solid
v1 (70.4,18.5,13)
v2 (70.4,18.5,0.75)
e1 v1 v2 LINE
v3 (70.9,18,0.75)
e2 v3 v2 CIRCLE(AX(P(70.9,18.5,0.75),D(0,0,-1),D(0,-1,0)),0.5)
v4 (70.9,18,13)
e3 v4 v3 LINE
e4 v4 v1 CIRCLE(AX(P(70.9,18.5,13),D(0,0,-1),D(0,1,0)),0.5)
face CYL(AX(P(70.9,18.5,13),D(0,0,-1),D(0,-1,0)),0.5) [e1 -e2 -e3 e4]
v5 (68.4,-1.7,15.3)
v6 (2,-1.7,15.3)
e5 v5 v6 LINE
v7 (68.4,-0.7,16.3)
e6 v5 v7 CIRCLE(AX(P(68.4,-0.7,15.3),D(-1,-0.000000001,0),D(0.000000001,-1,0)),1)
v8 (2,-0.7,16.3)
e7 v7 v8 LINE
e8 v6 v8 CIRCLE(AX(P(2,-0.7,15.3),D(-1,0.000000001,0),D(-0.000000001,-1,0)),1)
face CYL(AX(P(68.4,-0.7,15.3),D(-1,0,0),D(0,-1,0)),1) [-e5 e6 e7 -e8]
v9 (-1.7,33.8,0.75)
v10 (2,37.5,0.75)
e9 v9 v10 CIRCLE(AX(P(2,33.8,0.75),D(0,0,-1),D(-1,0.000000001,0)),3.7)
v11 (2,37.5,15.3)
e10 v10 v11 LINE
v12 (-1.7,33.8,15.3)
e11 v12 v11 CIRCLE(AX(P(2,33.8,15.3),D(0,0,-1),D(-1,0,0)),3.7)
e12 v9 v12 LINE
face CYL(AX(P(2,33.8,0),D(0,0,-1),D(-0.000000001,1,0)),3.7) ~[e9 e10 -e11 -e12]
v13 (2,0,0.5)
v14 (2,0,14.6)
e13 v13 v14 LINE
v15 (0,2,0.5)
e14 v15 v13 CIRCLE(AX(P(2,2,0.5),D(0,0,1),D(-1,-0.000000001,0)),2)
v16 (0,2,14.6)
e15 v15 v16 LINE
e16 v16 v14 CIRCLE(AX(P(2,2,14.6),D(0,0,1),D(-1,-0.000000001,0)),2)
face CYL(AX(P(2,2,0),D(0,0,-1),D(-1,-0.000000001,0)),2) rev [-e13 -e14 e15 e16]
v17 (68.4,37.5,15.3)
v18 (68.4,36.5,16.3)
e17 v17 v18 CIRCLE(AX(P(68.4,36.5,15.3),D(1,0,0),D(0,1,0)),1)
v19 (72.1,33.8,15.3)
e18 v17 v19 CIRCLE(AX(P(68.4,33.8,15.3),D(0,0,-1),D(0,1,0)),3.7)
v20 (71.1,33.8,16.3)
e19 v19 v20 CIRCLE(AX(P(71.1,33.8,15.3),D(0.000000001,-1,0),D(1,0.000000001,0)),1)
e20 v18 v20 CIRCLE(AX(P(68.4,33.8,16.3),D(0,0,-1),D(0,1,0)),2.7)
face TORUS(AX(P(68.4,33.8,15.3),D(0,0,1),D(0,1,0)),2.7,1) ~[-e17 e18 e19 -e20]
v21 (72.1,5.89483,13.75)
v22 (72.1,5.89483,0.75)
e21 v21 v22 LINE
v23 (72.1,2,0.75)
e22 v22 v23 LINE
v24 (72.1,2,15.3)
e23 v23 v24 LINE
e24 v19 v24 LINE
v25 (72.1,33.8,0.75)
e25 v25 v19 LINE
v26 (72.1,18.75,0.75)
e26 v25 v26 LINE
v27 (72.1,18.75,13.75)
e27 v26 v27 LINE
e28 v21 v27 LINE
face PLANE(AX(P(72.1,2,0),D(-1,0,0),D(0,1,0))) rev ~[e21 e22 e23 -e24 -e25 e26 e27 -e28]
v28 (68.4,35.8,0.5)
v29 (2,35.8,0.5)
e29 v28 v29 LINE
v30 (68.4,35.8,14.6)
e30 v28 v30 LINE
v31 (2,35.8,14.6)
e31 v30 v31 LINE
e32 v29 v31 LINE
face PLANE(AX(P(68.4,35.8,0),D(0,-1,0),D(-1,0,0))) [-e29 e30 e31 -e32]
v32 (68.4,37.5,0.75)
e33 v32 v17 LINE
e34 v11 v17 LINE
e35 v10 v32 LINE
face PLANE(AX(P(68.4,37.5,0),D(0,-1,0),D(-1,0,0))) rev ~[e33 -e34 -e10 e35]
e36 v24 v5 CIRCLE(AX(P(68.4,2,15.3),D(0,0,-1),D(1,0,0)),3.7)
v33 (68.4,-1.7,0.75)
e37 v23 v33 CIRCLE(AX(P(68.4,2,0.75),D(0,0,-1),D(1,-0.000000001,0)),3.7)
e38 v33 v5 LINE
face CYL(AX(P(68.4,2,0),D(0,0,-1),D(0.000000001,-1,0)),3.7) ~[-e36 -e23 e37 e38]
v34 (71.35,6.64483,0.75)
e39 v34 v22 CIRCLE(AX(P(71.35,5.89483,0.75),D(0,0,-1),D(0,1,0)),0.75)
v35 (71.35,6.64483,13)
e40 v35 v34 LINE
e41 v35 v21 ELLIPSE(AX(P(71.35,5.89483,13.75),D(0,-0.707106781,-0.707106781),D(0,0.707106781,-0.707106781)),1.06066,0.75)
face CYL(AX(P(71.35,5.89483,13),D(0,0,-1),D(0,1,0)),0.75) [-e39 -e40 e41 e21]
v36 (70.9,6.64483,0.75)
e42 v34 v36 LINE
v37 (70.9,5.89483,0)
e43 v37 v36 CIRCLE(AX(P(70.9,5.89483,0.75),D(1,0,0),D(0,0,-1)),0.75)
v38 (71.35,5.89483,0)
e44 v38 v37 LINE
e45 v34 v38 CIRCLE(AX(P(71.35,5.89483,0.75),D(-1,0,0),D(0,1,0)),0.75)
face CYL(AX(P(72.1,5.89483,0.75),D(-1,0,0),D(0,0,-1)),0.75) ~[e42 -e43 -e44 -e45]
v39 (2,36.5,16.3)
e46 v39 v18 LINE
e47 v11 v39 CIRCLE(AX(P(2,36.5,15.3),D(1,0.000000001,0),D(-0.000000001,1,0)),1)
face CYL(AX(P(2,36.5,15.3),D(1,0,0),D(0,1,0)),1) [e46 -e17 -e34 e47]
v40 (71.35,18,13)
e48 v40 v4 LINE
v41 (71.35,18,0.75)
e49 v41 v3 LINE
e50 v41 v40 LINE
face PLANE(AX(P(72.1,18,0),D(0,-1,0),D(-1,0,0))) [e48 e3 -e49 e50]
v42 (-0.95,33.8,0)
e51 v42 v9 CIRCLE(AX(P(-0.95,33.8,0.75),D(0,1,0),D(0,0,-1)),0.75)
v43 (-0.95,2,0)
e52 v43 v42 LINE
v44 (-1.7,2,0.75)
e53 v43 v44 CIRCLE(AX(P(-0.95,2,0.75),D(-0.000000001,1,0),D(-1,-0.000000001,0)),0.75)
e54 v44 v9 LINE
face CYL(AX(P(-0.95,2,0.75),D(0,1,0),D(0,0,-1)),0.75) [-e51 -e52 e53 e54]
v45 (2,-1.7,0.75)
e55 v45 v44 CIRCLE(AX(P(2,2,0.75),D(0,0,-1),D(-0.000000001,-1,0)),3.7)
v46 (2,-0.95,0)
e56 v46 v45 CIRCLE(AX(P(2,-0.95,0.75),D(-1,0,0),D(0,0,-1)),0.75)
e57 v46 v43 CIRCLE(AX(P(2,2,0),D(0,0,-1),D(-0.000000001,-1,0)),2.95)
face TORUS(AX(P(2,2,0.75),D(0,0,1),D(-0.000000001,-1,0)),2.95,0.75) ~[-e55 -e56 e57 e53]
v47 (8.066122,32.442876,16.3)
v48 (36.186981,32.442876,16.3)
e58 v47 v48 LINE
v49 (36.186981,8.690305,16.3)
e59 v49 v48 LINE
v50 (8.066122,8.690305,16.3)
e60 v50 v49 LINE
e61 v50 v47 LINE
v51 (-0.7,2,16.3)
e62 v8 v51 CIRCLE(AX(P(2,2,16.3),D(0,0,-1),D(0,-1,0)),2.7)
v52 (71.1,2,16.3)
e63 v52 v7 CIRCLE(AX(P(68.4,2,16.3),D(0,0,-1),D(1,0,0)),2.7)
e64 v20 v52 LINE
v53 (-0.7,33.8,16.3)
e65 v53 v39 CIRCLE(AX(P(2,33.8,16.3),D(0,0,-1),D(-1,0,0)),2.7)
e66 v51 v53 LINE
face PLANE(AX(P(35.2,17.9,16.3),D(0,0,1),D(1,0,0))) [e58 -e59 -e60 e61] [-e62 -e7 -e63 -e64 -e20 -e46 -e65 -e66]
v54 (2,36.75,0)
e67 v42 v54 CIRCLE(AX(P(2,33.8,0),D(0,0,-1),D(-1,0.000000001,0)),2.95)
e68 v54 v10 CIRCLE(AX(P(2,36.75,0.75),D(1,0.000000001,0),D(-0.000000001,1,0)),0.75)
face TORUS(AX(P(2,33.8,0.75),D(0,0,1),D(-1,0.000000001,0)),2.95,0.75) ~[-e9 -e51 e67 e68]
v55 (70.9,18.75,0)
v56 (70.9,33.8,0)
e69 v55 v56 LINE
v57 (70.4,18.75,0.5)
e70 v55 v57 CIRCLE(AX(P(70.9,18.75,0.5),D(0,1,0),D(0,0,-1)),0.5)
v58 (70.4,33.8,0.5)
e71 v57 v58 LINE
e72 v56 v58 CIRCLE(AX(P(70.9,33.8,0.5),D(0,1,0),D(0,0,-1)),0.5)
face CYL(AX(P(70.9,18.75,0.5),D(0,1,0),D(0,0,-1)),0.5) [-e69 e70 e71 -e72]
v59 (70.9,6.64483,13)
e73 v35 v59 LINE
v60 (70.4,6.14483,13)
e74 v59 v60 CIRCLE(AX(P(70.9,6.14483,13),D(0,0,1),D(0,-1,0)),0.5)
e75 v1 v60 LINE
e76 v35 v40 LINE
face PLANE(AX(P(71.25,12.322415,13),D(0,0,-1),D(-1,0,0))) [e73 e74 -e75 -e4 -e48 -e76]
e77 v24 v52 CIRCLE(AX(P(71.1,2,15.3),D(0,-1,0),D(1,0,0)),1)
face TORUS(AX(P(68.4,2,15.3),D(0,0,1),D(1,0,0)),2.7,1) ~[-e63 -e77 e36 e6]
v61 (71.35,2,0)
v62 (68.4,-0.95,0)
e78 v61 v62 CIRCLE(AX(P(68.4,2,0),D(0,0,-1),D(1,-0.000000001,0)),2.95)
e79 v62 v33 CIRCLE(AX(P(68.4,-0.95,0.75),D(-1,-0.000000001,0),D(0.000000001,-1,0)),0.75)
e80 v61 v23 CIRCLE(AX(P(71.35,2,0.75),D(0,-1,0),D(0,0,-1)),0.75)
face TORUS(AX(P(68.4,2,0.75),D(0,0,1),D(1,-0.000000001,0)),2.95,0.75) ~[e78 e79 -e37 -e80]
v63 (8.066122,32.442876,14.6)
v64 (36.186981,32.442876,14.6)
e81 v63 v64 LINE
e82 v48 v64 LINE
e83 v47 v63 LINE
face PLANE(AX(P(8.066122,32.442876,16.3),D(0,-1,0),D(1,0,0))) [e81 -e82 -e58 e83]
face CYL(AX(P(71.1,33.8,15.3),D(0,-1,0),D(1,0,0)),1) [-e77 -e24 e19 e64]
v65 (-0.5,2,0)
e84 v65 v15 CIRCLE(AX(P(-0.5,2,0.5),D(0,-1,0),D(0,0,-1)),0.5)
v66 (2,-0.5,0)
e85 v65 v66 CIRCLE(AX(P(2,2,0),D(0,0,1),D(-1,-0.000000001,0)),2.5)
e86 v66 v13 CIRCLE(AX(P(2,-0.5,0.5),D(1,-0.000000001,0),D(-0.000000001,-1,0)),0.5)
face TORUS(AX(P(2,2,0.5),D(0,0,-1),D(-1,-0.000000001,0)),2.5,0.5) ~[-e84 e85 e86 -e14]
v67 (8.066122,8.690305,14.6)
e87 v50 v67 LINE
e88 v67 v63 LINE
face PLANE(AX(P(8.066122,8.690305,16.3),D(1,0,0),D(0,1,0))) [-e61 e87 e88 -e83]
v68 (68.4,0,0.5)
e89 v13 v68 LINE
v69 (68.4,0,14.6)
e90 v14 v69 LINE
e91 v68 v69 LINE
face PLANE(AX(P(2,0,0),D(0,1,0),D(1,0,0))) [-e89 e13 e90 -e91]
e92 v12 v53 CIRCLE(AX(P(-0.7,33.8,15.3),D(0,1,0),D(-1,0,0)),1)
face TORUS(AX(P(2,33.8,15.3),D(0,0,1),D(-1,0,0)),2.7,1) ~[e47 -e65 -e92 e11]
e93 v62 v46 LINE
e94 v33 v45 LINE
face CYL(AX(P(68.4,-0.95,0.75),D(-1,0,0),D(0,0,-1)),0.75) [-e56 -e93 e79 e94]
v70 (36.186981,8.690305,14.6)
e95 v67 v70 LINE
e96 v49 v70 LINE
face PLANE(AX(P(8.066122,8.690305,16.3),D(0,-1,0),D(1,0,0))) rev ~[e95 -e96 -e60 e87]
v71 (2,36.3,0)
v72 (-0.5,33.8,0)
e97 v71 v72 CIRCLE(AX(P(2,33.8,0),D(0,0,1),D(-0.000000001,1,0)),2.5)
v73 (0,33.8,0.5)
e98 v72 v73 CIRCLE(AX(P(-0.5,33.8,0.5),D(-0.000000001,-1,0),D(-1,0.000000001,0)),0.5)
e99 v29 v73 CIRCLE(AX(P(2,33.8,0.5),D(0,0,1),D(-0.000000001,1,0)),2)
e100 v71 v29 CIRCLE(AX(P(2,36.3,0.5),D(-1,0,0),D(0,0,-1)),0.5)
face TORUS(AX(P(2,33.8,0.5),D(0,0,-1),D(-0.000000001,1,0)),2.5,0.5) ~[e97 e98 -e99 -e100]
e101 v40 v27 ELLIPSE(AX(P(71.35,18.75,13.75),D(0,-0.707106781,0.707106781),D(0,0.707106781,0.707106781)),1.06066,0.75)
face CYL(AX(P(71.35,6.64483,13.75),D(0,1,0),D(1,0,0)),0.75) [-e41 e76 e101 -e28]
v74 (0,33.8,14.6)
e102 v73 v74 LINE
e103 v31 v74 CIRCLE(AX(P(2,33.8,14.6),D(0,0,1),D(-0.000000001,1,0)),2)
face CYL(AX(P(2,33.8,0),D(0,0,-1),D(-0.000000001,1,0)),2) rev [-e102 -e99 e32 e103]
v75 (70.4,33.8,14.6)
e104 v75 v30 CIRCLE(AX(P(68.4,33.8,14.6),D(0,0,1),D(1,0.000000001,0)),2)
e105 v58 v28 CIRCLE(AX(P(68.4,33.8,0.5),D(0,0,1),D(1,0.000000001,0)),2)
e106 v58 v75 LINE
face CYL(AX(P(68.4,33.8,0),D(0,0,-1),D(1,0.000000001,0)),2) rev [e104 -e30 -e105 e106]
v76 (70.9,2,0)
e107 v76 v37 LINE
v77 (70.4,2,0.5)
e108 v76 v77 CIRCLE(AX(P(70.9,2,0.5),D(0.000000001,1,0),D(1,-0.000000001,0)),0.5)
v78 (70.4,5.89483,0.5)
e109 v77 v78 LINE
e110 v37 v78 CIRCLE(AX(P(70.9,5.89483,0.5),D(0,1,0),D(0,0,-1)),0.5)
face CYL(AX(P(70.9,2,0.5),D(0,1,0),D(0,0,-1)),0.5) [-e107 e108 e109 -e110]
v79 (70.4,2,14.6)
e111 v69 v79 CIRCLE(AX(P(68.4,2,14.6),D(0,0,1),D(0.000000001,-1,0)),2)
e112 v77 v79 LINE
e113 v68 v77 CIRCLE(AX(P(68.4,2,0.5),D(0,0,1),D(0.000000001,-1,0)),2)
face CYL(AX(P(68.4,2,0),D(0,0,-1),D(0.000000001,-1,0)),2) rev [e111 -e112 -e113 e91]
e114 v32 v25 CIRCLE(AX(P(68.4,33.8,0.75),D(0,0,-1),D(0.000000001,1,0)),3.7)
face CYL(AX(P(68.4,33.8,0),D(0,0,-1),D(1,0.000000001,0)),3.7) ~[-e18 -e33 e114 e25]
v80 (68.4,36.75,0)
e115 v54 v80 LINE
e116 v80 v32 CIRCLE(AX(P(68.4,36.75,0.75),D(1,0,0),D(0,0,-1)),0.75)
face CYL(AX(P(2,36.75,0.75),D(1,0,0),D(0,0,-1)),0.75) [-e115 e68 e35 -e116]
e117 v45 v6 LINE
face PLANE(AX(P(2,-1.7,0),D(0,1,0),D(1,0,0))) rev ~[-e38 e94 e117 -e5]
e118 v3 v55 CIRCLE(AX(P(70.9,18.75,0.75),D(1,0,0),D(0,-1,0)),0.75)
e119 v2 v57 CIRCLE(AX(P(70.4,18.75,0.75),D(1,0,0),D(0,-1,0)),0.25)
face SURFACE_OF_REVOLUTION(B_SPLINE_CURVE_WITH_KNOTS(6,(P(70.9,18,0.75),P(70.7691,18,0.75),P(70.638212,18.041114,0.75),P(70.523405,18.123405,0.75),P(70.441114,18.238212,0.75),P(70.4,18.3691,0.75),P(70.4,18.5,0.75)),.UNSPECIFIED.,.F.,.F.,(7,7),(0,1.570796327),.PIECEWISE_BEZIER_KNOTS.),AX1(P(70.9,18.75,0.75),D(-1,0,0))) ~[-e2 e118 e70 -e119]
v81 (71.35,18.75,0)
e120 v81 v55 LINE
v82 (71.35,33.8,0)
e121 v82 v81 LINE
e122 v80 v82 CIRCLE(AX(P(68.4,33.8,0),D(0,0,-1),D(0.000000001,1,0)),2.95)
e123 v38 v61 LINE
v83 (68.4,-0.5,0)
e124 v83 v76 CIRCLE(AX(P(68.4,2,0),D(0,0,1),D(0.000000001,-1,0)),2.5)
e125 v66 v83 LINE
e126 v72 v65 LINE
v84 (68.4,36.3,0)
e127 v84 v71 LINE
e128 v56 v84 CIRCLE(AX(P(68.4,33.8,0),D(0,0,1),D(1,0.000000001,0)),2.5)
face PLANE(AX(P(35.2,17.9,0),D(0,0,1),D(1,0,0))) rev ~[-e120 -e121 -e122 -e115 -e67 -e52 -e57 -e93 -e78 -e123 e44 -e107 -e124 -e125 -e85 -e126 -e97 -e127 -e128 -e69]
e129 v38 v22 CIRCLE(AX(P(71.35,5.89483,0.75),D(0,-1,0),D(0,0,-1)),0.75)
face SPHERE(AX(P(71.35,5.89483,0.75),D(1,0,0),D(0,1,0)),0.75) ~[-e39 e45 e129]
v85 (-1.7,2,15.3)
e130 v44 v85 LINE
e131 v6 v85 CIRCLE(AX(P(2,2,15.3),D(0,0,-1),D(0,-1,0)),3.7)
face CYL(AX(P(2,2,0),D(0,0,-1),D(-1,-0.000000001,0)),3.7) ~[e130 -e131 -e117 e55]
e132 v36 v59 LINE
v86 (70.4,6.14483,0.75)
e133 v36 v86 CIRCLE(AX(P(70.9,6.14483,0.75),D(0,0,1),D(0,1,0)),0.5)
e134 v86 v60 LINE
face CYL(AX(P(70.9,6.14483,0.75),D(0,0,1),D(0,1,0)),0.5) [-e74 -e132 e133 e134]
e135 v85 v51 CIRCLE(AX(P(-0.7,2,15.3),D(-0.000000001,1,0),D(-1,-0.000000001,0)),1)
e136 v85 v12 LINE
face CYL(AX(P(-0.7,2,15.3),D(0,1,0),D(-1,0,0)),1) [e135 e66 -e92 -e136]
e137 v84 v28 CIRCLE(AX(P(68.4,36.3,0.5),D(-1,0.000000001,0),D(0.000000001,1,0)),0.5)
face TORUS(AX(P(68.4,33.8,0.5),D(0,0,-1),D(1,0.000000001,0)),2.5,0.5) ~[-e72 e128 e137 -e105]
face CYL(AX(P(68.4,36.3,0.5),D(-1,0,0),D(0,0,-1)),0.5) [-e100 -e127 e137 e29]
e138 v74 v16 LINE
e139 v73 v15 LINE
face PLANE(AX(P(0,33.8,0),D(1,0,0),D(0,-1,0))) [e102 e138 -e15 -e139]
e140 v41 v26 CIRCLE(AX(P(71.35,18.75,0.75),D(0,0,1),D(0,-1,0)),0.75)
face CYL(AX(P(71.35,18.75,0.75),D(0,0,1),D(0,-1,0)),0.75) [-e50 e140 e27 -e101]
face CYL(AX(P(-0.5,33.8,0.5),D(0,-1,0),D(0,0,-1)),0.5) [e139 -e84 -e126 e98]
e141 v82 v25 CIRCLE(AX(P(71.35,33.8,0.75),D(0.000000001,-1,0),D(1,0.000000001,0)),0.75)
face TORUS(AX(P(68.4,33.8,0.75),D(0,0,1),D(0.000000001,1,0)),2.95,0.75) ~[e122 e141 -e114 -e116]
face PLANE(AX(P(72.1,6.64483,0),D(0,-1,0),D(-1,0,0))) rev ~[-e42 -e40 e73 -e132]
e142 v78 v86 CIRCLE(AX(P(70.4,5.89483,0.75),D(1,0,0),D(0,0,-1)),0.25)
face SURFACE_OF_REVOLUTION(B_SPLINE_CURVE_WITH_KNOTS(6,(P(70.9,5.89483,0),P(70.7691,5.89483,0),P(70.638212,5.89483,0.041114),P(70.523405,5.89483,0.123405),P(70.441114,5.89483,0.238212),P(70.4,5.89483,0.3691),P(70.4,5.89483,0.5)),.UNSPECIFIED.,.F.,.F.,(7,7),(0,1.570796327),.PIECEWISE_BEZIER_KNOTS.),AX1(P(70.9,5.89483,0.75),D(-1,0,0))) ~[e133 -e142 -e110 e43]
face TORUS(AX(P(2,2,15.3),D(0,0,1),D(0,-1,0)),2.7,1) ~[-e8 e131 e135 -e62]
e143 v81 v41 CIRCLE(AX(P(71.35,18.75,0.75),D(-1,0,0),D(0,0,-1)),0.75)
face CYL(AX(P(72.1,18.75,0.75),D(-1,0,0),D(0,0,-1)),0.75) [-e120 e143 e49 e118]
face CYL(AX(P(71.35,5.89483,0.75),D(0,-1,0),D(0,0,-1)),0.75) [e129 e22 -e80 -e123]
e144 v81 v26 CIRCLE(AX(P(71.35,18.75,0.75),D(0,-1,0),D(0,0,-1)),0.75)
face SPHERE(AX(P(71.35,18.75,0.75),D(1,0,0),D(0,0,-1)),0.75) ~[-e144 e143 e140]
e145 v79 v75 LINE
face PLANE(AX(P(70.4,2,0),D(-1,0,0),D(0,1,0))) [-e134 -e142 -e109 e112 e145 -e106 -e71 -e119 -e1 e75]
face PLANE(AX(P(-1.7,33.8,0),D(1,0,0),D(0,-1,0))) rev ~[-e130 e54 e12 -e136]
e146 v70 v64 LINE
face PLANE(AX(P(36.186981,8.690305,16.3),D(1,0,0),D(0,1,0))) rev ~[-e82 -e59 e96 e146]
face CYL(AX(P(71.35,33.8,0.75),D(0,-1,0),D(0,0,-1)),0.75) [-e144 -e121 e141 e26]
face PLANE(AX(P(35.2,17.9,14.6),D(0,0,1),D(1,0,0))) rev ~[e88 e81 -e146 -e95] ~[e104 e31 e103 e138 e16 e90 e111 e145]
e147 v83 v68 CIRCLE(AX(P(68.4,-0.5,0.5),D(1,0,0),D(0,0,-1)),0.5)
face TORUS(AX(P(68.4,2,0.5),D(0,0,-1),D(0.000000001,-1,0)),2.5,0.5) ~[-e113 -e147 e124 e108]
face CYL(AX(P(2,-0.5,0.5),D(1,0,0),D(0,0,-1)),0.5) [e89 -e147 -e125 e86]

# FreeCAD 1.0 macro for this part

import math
import FreeCAD as App
import Part
import Sketcher


def edges_at(feature, points):
    """Names of the edges that pass closest to the given points."""
    edges = feature.Shape.Edges
    near = lambda p: min(range(len(edges)), key=lambda i: edges[i].distToShape(Part.Vertex(*p))[0])
    return sorted({f"Edge{near(p) + 1}" for p in points})


def faces_at(feature, points):
    """Names of the faces that lie closest to the given points."""
    faces = feature.Shape.Faces
    near = lambda p: min(range(len(faces)), key=lambda i: faces[i].distToShape(Part.Vertex(*p))[0])
    return sorted({f"Face{near(p) + 1}" for p in points})


def add_polygon(sketch, points):
    """Adds a closed chain of lines whose ends are joined by coincident constraints."""
    first, n = sketch.GeometryCount, len(points)
    for a, b in zip(points, points[1:] + points[:1]):
        sketch.addGeometry(Part.LineSegment(App.Vector(*a, 0), App.Vector(*b, 0)), False)
    for i in range(n):
        sketch.addConstraint(Sketcher.Constraint("Coincident", first + i, 2, first + (i + 1) % n, 1))

doc = App.newDocument("Part")
body = doc.addObject("PartDesign::Body", "Body")

sketch1 = doc.addObject("Sketcher::SketchObject", "Sketch")
body.addObject(sketch1)
sketch1.AttachmentSupport = (doc.XY_Plane, [""])
sketch1.MapMode = "FlatFace"
sketch1.addGeometry([
    Part.LineSegment(App.Vector(2, 0, 0), App.Vector(68.4, 0, 0)),
    Part.ArcOfCircle(Part.Circle(App.Vector(68.4, 2, 0), App.Vector(0, 0, 1), 2), math.radians(-90), math.radians(0)),
    Part.LineSegment(App.Vector(70.4, 2, 0), App.Vector(70.4, 33.8, 0)),
    Part.ArcOfCircle(Part.Circle(App.Vector(68.4, 33.8, 0), App.Vector(0, 0, 1), 2), math.radians(0), math.radians(90)),
    Part.LineSegment(App.Vector(68.4, 35.8, 0), App.Vector(2, 35.8, 0)),
    Part.ArcOfCircle(Part.Circle(App.Vector(2, 33.8, 0), App.Vector(0, 0, 1), 2), math.radians(90), math.radians(180)),
    Part.LineSegment(App.Vector(0, 33.8, 0), App.Vector(0, 2, 0)),
    Part.ArcOfCircle(Part.Circle(App.Vector(2, 2, 0), App.Vector(0, 0, 1), 2), math.radians(-180), math.radians(-90)),
], False)
sketch1.addConstraint([
    Sketcher.Constraint("Tangent", 0, 2, 1, 1),
    Sketcher.Constraint("Tangent", 1, 2, 2, 1),
    Sketcher.Constraint("Tangent", 2, 2, 3, 1),
    Sketcher.Constraint("Tangent", 3, 2, 4, 1),
    Sketcher.Constraint("Tangent", 4, 2, 5, 1),
    Sketcher.Constraint("Tangent", 5, 2, 6, 1),
    Sketcher.Constraint("Tangent", 6, 2, 7, 1),
    Sketcher.Constraint("Tangent", 7, 2, 0, 1),
    Sketcher.Constraint("Horizontal", 0),
    Sketcher.Constraint("Vertical", 2),
    Sketcher.Constraint("Horizontal", 4),
    Sketcher.Constraint("Vertical", 6),
    Sketcher.Constraint("Equal", 1, 3),
    Sketcher.Constraint("Equal", 3, 5),
    Sketcher.Constraint("Equal", 5, 7),
    Sketcher.Constraint("PointOnObject", 0, 2, -1),
    Sketcher.Constraint("PointOnObject", 5, 2, -2),
    Sketcher.Constraint("Radius", 1, 2.0),
    Sketcher.Constraint("DistanceX", 0, 1, 0, 2, 66.4),
    Sketcher.Constraint("DistanceY", 2, 1, 2, 2, 31.8),
])
pad1 = doc.addObject("PartDesign::Pad", "Pad")
body.addObject(pad1)
pad1.Profile = sketch1
pad1.Length = 14.6
doc.recompute()

thickness = doc.addObject("PartDesign::Thickness", "Thickness")
body.addObject(thickness)
thickness.Base = (pad1, faces_at(pad1, [(35.2, 17.9, 0)]))
thickness.Value = 1.7
thickness.Reversed = False
thickness.Join = "Intersection"

sketch2 = doc.addObject("Sketcher::SketchObject", "Sketch001")
body.addObject(sketch2)
sketch2.AttachmentSupport = (doc.XY_Plane, [""])
sketch2.MapMode = "FlatFace"
add_polygon(sketch2, [(72.1, 18), (72.1, 6.6), (70.4, 6.6), (70.4, 18)])
sketch2.addConstraint([
    Sketcher.Constraint("Vertical", 0),
    Sketcher.Constraint("Horizontal", 1),
    Sketcher.Constraint("Vertical", 2),
    Sketcher.Constraint("Horizontal", 3),
    Sketcher.Constraint("DistanceX", 1, 2, 1, 1, 1.7),
    Sketcher.Constraint("DistanceY", -1, 1, 2, 2, 18.0),
    Sketcher.Constraint("DistanceX", -1, 1, 0, 2, 72.1),
    Sketcher.Constraint("DistanceY", 0, 2, 0, 1, 11.35517),
])
pocket1 = doc.addObject("PartDesign::Pocket", "Pocket")
body.addObject(pocket1)
pocket1.Profile = sketch2
pocket1.Length = 13
pocket1.Reversed = True
doc.recompute()

fillet = doc.addObject("PartDesign::Fillet", "Fillet")
body.addObject(fillet)
fillet.Base = (pocket1, edges_at(pocket1, [(71.25, 6.645, 0), (71.25, 18, 0)]))
fillet.Radius = 0.75

sketch3 = doc.addObject("Sketcher::SketchObject", "Sketch002")
body.addObject(sketch3)
sketch3.AttachmentSupport = (doc.XY_Plane, [""])
sketch3.MapMode = "FlatFace"
sketch3.AttachmentOffset = App.Placement(App.Vector(0, 0, 16.3), App.Rotation())
add_polygon(sketch3, [(8, 32), (8, 9), (36, 9), (36, 32)])
sketch3.addConstraint([
    Sketcher.Constraint("Vertical", 0),
    Sketcher.Constraint("Horizontal", 1),
    Sketcher.Constraint("Vertical", 2),
    Sketcher.Constraint("Horizontal", 3),
    Sketcher.Constraint("DistanceX", 1, 1, 1, 2, 28.120859),
    Sketcher.Constraint("DistanceY", 0, 2, 0, 1, 23.75257),
    Sketcher.Constraint("DistanceX", -1, 1, 0, 2, 8.066122),
    Sketcher.Constraint("DistanceY", -1, 1, 0, 2, 8.690305),
])
pocket2 = doc.addObject("PartDesign::Pocket", "Pocket001")
body.addObject(pocket2)
pocket2.Profile = sketch3
pocket2.Length = 3
doc.recompute()

fillet2 = doc.addObject("PartDesign::Fillet", "Fillet001")
body.addObject(fillet2)
fillet2.Base = (pocket2, edges_at(pocket2, [
    (-0.616, -0.616, 16.3),
    (35.2, -1.7, 16.3),
    (71.016, -0.616, 16.3),
    (72.1, 17.9, 16.3),
    (71.016, 36.416, 16.3),
    (35.2, 37.5, 16.3),
    (-0.616, 36.416, 16.3),
    (-1.7, 17.9, 16.3),
]))
fillet2.Radius = 1
doc.recompute()

fillet3 = doc.addObject("PartDesign::Fillet", "Fillet002")
body.addObject(fillet3)
fillet3.Base = (fillet2, edges_at(fillet2, [
    (-1.7, 17.9, 0),
    (-0.616, 36.416, 0),
    (72.1, 12.322, 13),
    (72.1, 6.645, 6.875),
    (72.1, 18, 6.875),
    (72.1, 26.275, 0),
    (72.1, 18.22, 0.22),
    (72.1, 6.425, 0.22),
    (35.2, 37.5, 0),
    (71.016, 36.416, 0),
    (72.1, 3.947, 0),
    (71.016, -0.616, 0),
    (35.2, -1.7, 0),
    (-0.616, -0.616, 0),
]))
fillet3.Radius = 0.75
doc.recompute()

fillet4 = doc.addObject("PartDesign::Fillet", "Fillet003")
body.addObject(fillet4)
fillet4.Base = (fillet3, edges_at(fillet3, [
    (0.586, 35.214, 0),
    (0, 17.9, 0),
    (0.586, 0.586, 0),
    (35.2, 0, 0),
    (69.814, 0.586, 0),
    (70.4, 3.947, 0),
    (69.814, 35.214, 0),
    (35.2, 35.8, 0),
    (70.4, 18, 6.875),
    (70.4, 6.645, 6.875),
    (70.4, 26.275, 0),
    (70.4, 18.22, 0.22),
    (70.4, 6.425, 0.22),
]))
fillet4.Radius = 0.5

doc.recompute()
